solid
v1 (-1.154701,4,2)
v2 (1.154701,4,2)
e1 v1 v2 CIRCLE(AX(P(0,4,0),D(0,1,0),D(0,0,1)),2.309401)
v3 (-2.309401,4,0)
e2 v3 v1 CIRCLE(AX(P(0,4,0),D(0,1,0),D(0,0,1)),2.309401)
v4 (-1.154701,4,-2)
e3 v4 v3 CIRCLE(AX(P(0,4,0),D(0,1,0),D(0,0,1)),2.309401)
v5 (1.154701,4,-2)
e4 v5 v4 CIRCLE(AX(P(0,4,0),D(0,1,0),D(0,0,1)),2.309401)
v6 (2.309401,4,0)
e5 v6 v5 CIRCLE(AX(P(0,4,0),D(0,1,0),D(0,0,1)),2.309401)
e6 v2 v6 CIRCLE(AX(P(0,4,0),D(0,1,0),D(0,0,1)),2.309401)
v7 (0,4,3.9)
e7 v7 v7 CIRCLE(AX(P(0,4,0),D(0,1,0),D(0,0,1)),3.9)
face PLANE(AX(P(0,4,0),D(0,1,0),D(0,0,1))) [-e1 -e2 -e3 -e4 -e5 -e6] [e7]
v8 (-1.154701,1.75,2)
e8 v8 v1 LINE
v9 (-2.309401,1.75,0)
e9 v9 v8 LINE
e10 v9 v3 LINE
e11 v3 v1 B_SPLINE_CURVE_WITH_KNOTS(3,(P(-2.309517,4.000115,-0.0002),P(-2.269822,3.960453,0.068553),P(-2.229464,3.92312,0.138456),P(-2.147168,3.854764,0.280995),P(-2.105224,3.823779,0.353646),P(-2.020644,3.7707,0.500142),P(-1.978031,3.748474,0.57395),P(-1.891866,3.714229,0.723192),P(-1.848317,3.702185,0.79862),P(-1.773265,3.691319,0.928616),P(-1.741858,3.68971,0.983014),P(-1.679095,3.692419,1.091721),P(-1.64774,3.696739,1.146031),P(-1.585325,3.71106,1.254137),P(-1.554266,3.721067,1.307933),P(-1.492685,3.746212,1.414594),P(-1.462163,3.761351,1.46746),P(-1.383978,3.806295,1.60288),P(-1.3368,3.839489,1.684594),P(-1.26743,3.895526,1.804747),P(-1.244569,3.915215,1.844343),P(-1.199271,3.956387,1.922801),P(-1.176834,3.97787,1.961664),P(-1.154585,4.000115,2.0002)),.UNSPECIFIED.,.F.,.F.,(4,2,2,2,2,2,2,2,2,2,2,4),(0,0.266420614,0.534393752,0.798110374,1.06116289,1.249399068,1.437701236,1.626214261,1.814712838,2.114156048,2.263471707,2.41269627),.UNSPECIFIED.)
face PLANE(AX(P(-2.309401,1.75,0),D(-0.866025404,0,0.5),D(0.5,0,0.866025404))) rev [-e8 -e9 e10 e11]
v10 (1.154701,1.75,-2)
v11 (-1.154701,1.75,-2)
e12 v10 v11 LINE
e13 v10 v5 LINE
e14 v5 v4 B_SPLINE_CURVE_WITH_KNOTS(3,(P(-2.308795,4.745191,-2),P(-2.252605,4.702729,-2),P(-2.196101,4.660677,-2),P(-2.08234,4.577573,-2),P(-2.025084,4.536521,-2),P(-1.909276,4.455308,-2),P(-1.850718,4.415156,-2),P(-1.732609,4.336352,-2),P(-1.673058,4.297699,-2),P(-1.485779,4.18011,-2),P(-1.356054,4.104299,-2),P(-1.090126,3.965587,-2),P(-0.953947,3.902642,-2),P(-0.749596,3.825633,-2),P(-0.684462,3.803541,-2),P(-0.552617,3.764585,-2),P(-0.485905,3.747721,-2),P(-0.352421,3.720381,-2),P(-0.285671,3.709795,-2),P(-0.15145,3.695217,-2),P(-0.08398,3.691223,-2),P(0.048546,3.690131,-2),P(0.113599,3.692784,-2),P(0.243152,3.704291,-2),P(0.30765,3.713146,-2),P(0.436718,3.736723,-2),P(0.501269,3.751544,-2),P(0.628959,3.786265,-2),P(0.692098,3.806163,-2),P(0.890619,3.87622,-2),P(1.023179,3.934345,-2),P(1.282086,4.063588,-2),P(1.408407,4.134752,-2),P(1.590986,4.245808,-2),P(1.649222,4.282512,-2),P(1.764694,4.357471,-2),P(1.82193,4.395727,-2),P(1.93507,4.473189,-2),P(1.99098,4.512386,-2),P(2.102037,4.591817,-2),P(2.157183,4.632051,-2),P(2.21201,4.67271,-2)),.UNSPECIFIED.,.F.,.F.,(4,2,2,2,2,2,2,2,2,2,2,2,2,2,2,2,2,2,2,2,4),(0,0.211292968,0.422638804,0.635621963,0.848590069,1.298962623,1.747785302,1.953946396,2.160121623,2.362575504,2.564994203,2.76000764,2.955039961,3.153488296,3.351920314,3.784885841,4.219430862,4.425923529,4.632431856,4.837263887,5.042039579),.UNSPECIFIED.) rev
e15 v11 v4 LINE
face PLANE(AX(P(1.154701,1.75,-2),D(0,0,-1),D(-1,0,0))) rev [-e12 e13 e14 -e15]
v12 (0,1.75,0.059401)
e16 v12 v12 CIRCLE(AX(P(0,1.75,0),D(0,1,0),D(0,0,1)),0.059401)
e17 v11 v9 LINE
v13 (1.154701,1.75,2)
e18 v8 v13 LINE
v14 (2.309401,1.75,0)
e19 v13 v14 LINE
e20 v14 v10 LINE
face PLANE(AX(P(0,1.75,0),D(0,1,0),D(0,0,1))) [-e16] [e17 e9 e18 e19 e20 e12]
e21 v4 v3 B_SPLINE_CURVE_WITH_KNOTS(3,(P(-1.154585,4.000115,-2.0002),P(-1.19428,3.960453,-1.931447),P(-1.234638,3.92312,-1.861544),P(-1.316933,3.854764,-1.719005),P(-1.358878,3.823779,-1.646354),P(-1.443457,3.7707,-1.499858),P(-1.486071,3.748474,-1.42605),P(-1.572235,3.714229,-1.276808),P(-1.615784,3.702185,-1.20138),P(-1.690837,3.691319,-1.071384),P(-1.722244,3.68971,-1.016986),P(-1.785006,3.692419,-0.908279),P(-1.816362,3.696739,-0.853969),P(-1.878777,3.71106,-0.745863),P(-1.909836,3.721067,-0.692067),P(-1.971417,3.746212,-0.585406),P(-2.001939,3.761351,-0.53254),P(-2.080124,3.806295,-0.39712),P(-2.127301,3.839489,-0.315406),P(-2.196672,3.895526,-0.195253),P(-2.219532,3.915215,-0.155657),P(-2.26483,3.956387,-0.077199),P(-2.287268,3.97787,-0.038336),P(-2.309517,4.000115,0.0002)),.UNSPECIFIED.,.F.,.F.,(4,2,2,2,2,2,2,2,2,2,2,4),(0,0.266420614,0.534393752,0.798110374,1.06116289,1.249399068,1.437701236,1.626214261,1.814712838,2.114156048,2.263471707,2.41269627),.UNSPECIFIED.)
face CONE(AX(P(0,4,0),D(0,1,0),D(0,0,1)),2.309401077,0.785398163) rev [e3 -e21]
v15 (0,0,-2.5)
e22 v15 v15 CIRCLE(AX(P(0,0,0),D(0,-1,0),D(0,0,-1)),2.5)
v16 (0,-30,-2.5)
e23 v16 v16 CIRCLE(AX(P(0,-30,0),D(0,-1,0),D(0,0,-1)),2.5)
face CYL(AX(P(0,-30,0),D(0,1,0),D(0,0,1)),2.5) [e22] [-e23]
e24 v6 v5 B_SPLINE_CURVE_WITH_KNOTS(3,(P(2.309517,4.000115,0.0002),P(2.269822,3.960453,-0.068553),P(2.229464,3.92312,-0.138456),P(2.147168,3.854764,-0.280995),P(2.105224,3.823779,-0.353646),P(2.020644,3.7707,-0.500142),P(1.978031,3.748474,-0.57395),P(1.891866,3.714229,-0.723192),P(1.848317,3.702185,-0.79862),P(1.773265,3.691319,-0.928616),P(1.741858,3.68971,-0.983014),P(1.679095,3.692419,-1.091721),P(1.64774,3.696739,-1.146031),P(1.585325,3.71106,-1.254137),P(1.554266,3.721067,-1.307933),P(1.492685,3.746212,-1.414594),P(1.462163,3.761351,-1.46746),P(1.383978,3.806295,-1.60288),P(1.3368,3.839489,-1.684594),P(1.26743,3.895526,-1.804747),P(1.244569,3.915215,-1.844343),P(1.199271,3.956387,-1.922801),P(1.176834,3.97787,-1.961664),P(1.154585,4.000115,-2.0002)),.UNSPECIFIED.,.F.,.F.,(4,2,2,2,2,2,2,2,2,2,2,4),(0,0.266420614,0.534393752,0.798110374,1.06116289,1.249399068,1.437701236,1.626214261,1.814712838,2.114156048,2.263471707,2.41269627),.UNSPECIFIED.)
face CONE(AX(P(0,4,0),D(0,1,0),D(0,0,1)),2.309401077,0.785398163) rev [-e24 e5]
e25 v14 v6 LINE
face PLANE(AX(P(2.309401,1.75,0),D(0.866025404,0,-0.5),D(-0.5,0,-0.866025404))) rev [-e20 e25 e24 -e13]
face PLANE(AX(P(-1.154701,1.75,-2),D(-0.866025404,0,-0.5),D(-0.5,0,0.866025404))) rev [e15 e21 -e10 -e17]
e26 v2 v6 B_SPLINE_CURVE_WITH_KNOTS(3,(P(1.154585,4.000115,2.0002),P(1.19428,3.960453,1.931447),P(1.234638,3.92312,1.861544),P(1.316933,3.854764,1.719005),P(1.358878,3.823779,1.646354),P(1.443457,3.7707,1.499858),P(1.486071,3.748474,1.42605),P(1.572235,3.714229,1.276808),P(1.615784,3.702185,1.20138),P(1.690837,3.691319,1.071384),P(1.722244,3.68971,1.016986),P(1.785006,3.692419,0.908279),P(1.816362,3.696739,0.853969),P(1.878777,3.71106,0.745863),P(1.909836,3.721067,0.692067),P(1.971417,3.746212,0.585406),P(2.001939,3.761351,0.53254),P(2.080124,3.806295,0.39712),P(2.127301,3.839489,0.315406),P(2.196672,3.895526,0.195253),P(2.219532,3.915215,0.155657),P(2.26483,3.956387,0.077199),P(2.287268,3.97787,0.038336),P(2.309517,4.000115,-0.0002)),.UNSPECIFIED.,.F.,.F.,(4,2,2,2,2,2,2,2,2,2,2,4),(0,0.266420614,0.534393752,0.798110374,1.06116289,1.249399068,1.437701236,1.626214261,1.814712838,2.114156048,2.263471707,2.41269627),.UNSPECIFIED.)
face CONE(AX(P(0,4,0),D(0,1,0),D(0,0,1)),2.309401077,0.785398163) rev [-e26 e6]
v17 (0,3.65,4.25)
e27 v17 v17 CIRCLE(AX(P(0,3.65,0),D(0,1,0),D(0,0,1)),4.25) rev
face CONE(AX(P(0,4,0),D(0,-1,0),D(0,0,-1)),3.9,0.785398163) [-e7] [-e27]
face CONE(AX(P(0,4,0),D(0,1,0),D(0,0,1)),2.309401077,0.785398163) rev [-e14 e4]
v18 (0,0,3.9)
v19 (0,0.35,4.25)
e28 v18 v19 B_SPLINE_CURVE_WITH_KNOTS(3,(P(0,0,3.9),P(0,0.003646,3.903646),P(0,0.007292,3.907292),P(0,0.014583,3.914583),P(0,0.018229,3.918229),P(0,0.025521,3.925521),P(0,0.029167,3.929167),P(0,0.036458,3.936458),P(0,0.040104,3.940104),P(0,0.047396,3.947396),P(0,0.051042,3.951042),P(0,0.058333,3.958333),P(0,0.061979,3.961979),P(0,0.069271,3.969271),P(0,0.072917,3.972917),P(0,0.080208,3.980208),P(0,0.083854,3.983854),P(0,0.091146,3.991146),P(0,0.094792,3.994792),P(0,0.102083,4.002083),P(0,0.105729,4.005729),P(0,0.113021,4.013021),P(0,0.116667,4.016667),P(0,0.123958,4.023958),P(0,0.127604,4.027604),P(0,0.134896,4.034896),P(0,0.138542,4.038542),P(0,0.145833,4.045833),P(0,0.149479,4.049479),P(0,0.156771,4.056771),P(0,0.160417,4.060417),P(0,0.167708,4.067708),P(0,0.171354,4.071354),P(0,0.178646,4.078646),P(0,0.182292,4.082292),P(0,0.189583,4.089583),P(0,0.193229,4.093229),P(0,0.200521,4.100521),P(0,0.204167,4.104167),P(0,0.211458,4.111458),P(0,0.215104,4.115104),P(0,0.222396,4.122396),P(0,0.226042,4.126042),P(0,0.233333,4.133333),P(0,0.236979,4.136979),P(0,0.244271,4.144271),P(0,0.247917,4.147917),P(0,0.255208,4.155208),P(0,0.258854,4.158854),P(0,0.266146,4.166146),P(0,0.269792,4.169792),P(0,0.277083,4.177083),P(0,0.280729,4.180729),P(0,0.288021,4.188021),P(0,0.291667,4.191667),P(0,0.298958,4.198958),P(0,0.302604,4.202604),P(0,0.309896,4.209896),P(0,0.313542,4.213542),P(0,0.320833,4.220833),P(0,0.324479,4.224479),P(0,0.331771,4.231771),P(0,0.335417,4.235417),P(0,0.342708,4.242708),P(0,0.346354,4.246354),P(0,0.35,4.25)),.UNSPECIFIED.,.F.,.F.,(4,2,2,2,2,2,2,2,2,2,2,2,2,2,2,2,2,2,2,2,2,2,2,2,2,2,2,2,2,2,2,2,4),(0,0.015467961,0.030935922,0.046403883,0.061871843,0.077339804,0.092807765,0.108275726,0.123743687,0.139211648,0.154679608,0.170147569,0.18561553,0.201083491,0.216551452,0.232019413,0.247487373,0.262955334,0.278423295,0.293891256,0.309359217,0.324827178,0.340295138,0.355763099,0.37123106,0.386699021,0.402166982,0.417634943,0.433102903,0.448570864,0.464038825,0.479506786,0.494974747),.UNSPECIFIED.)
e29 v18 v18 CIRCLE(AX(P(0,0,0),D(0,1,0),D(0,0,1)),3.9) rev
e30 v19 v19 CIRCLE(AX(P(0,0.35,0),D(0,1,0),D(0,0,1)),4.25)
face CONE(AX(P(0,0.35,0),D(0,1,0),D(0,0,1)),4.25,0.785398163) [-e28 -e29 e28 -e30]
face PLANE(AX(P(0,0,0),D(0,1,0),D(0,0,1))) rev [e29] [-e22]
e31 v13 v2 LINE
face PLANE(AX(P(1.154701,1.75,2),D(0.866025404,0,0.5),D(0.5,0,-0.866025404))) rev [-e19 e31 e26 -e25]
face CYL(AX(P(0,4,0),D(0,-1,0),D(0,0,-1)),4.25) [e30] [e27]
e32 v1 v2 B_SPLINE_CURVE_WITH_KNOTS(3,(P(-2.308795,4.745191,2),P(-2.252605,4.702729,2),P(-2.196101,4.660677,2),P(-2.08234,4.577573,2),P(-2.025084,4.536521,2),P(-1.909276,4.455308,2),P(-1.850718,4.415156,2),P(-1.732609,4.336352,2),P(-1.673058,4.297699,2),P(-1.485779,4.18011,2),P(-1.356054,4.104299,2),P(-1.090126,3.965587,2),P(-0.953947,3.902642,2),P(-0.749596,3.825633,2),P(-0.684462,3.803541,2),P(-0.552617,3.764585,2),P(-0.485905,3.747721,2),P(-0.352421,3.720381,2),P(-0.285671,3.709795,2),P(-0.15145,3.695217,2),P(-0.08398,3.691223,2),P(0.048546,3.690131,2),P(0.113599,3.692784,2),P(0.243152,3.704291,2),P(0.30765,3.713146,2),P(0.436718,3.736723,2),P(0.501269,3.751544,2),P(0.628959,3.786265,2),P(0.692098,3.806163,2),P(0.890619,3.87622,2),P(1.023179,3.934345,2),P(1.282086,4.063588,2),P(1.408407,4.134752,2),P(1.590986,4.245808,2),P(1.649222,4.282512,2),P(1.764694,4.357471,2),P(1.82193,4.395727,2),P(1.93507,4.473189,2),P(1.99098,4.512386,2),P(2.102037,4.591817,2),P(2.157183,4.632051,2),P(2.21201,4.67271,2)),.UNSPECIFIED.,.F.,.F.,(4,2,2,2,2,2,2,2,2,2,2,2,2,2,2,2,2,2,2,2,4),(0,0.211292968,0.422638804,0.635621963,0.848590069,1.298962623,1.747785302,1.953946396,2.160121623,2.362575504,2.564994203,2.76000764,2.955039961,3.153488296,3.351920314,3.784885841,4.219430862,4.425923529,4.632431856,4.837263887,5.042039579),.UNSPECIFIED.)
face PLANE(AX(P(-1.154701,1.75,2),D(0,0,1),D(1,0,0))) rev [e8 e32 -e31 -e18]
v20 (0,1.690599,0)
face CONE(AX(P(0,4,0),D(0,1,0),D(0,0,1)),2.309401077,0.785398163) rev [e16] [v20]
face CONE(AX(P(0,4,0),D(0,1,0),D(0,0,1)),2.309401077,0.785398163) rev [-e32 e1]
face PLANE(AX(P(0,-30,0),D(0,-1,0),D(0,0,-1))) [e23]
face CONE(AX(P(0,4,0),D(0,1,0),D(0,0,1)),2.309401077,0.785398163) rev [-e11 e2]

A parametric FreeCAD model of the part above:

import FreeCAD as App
import Part
import Sketcher

V = App.Vector
Q = App.Units.Quantity


def edges_at(feature, points):
    """Names of the edges that pass closest to the given points."""
    edges = feature.Shape.Edges
    near = lambda p: min(range(len(edges)), key=lambda i: edges[i].distToShape(Part.Vertex(*p))[0])
    return sorted({f"Edge{near(p) + 1}" for p in points})


def add_polygon(sketch, points):
    """Adds a closed chain of lines whose ends are joined by coincident constraints."""
    first, n = sketch.GeometryCount, len(points)
    for a, b in zip(points, points[1:] + points[:1]):
        sketch.addGeometry(Part.LineSegment(App.Vector(*a, 0), App.Vector(*b, 0)), False)
    for i in range(n):
        sketch.addConstraint(Sketcher.Constraint("Coincident", first + i, 2, first + (i + 1) % n, 1))

doc = App.newDocument("Part")
body = doc.addObject("PartDesign::Body", "Body")

# Sketch on XZ plane
sketch1 = body.newObject("Sketcher::SketchObject", "Sketch")
sketch1.AttachmentSupport = (doc.getObject("XZ_Plane"), [""])
sketch1.MapMode = "FlatFace"
sketch1.addGeometry(Part.Circle(V(0, 0, 0), V(0, 0, 1), 4.25), False)
sketch1.addConstraint(Sketcher.Constraint("Coincident", 0, 3, -1, 1))
sketch1.addConstraint(Sketcher.Constraint("Diameter", 0, Q("8.5 mm")))
pad1 = body.newObject("PartDesign::Pad", "Pad")
pad1.Profile = sketch1
pad1.Length = 4
pad1.Reversed = True

# Sketch on XZ plane
sketch2 = body.newObject("Sketcher::SketchObject", "Sketch001")
sketch2.AttachmentSupport = (doc.getObject("XZ_Plane"), [""])
sketch2.MapMode = "FlatFace"
sketch2.AttachmentOffset = App.Placement(V(0, 0, -4), App.Rotation())
add_polygon(sketch2, [(1.154701, -2), (-1.154701, -2), (-2.309401, 0), (-1.154701, 2), (1.154701, 2), (2.309401, 0)])  # lines 0-5
sketch2.addConstraint(Sketcher.Constraint("Horizontal", 0))
sketch2.addConstraint(Sketcher.Constraint("Horizontal", 3))
sketch2.addConstraint(Sketcher.Constraint("Symmetric", 0, 2, 3, 2, -1, 1))
sketch2.addConstraint(Sketcher.Constraint("Symmetric", 1, 2, 4, 2, -1, 1))
sketch2.addConstraint(Sketcher.Constraint("PointOnObject", 1, 2, -1))
sketch2.addConstraint(Sketcher.Constraint("Parallel", 2, 5))
sketch2.addConstraint(Sketcher.Constraint("Vertical", 0, 2, 2, 2))
sketch2.addConstraint(Sketcher.Constraint("Angle", 1, Q("120 deg")))
sketch2.addConstraint(Sketcher.Constraint("DistanceY", 0, 2, -1, 1, Q("2 mm")))
sketch2.addConstraint(Sketcher.Constraint("DistanceX", 0, 2, 0, 1, Q("2.309401 mm")))
pocket1 = body.newObject("PartDesign::Pocket", "Pocket")
pocket1.Profile = sketch2
pocket1.Length = 2.25
pocket1.Reversed = True

# Sketch on YZ plane
sketch3 = body.newObject("Sketcher::SketchObject", "Sketch002")
sketch3.AttachmentSupport = (doc.getObject("YZ_Plane"), [""])
sketch3.MapMode = "FlatFace"
add_polygon(sketch3, [(4, 0), (4, 2.309401), (1.690599, 0)])  # lines 0-2
sketch3.addConstraint(Sketcher.Constraint("Vertical", 0))
sketch3.addConstraint(Sketcher.Constraint("Horizontal", 2))
sketch3.addConstraint(Sketcher.Constraint("PointOnObject", 1, 2, -1))
sketch3.addConstraint(Sketcher.Constraint("Equal", 2, 0))
sketch3.addConstraint(Sketcher.Constraint("DistanceX", -1, 1, 0, 2, Q("4 mm")))
sketch3.addConstraint(Sketcher.Constraint("DistanceX", 2, 1, 2, 2, Q("2.309401 mm")))
groove = body.newObject("PartDesign::Groove", "Groove")
groove.Profile = sketch3
groove.ReferenceAxis = (sketch3, ["H_Axis"])
groove.Angle = 360
doc.recompute()

chamfer = body.newObject("PartDesign::Chamfer", "Chamfer")
chamfer.Base = (groove, edges_at(groove, [(0, 0, -4.25), (0, 4, -4.25)]))
chamfer.Size = 0.35

# Sketch on XZ plane
sketch4 = body.newObject("Sketcher::SketchObject", "Sketch003")
sketch4.AttachmentSupport = (doc.getObject("XZ_Plane"), [""])
sketch4.MapMode = "FlatFace"
sketch4.addGeometry(Part.Circle(V(0, 0, 0), V(0, 0, 1), 2.5), False)
sketch4.addConstraint(Sketcher.Constraint("Coincident", 0, 3, -1, 1))
sketch4.addConstraint(Sketcher.Constraint("Diameter", 0, Q("5 mm")))
pad2 = body.newObject("PartDesign::Pad", "Pad001")
pad2.Profile = sketch4
pad2.Length = 30

doc.recompute()
